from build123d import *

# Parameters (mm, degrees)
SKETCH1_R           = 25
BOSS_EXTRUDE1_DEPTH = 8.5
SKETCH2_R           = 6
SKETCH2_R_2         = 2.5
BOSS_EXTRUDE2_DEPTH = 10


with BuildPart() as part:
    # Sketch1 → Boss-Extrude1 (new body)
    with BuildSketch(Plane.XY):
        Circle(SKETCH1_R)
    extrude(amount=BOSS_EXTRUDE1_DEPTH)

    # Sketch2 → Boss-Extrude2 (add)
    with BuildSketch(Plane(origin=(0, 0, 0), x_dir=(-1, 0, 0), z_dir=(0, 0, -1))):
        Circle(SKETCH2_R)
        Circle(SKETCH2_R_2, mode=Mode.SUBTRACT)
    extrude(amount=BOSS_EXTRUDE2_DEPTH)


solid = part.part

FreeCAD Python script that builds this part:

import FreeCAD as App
import Part
import Sketcher

V = App.Vector

doc = App.newDocument("Part")
body = doc.addObject("PartDesign::Body", "Body")

sketch1 = doc.addObject("Sketcher::SketchObject", "Sketch")
body.addObject(sketch1)
sketch1.AttachmentSupport = (doc.XY_Plane, [""])
sketch1.MapMode = "FlatFace"
sketch1.addGeometry(Part.Circle(V(0, 0, 0), V(0, 0, 1), 25), False)
sketch1.addConstraint([
    Sketcher.Constraint("Coincident", 0, 3, -1, 1),
    Sketcher.Constraint("Diameter", 0, 50.0),
])
pad1 = doc.addObject("PartDesign::Pad", "Pad")
body.addObject(pad1)
pad1.Profile = sketch1
pad1.Length = 8.5

sketch2 = doc.addObject("Sketcher::SketchObject", "Sketch001")
body.addObject(sketch2)
sketch2.AttachmentSupport = (doc.XY_Plane, [""])
sketch2.MapMode = "FlatFace"
sketch2.addGeometry([
    Part.Circle(V(0, 0, 0), V(0, 0, 1), 6),
    Part.Circle(V(0, 0, 0), V(0, 0, 1), 2.5),
], False)
sketch2.addConstraint([
    Sketcher.Constraint("Coincident", 0, 3, -1, 1),
    Sketcher.Constraint("Coincident", 1, 3, -1, 1),
    Sketcher.Constraint("Diameter", 0, 12.0),
    Sketcher.Constraint("Diameter", 1, 5.0),
])
pad2 = doc.addObject("PartDesign::Pad", "Pad001")
body.addObject(pad2)
pad2.Profile = sketch2
pad2.Length = 10
pad2.Reversed = True

doc.recompute()
